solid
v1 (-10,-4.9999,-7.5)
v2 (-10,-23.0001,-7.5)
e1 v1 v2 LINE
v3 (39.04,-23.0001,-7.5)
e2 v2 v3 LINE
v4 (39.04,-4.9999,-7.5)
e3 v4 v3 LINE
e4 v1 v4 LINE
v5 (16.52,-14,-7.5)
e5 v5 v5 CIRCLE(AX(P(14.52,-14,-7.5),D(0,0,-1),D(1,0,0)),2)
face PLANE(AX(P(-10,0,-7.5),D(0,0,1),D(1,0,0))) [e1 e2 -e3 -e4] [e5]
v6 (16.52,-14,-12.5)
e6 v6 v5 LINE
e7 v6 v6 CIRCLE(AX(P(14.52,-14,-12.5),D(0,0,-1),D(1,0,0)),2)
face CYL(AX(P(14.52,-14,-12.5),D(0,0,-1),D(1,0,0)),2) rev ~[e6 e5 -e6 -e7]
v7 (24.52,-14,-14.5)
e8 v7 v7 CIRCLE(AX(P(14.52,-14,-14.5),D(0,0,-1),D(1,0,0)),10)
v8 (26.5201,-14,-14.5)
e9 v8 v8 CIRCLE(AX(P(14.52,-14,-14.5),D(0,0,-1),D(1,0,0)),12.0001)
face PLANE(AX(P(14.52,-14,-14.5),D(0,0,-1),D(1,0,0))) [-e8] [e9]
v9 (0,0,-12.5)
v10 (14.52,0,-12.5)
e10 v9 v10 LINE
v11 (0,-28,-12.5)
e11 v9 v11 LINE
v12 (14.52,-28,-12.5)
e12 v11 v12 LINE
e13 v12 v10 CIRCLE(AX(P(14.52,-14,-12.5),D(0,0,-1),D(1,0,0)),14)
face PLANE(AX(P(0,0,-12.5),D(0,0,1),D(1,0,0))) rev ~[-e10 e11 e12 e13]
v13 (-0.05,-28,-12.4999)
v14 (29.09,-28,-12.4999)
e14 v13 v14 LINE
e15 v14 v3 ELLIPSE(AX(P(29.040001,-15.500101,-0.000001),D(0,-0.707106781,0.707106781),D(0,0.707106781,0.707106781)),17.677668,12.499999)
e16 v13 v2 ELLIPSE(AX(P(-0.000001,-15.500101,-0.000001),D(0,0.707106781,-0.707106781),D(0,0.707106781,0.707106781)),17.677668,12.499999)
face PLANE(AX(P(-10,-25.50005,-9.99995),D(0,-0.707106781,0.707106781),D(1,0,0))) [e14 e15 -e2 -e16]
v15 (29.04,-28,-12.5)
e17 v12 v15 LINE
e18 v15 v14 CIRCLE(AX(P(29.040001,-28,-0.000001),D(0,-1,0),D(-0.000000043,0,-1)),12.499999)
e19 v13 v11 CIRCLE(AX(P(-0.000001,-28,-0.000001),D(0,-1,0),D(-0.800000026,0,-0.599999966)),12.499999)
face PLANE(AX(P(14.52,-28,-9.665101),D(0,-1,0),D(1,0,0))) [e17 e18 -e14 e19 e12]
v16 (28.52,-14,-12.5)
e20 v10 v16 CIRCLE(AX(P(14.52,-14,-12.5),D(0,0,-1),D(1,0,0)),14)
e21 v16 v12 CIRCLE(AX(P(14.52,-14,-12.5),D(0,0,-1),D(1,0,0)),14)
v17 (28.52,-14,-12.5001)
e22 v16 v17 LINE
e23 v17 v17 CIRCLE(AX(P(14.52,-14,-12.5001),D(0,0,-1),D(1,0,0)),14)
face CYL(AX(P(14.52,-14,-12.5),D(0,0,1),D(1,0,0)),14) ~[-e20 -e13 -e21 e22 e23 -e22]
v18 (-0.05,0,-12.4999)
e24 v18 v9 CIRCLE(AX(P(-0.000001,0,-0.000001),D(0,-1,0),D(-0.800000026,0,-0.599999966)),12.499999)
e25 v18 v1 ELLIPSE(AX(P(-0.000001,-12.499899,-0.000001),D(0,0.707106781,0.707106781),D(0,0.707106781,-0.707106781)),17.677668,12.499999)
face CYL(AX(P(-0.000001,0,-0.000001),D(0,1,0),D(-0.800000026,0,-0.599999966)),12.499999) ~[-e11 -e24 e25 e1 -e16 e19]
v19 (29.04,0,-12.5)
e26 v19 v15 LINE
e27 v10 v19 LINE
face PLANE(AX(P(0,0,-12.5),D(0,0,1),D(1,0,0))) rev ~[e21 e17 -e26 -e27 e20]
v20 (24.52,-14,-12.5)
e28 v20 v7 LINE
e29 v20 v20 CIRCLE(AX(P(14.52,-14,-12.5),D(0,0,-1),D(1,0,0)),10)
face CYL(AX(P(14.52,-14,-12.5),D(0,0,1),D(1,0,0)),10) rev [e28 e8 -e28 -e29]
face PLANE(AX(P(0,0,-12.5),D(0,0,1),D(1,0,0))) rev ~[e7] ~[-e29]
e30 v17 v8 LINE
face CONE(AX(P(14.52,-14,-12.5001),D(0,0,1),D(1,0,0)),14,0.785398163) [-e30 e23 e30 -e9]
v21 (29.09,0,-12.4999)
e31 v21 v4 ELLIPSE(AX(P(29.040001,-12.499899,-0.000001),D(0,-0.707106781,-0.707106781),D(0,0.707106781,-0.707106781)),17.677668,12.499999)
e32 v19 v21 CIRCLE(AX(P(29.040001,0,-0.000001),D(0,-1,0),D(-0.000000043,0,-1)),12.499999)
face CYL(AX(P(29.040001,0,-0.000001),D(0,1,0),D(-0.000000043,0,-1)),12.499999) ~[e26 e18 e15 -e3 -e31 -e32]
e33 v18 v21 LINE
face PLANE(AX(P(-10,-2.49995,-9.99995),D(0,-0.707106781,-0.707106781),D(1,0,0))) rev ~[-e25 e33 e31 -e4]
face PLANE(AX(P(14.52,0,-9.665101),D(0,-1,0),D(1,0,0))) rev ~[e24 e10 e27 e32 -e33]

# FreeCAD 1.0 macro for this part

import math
import FreeCAD as App
import Part
import Sketcher

V = App.Vector
Q = App.Units.Quantity


def edges_at(feature, points):
    """Names of the edges that pass closest to the given points."""
    edges = feature.Shape.Edges
    near = lambda p: min(range(len(edges)), key=lambda i: edges[i].distToShape(Part.Vertex(*p))[0])
    return sorted({f"Edge{near(p) + 1}" for p in points})

doc = App.newDocument("Part")
body = doc.addObject("PartDesign::Body", "Body")

sketch1 = body.newObject("Sketcher::SketchObject", "Sketch")
sketch1.AttachmentSupport = (doc.getObject("XZ_Plane"), [""])
sketch1.MapMode = "FlatFace"
sketch1.addGeometry([
    Part.ArcOfCircle(Part.Circle(V(0, 0, 0), V(0, 0, 1), 12), math.radians(-143), math.radians(-90)),
    Part.LineSegment(V(0, -12, 0), V(29, -12, 0)),
    Part.ArcOfCircle(Part.Circle(V(29, 0, 0), V(0, 0, 1), 12), math.radians(-90), math.radians(-37)),
    Part.LineSegment(V(39, -8, 0), V(-10, -8, 0)),
], False)
sketch1.addConstraint([
    Sketcher.Constraint("Tangent", 0, 2, 1, 1),
    Sketcher.Constraint("Tangent", 1, 2, 2, 1),
    Sketcher.Constraint("Coincident", 2, 2, 3, 1),
    Sketcher.Constraint("Coincident", 3, 2, 0, 1),
    Sketcher.Constraint("Horizontal", 1),
    Sketcher.Constraint("Horizontal", 3),
    Sketcher.Constraint("Coincident", 0, 3, -1, 1),
    Sketcher.Constraint("Equal", 0, 2),
    Sketcher.Constraint("Radius", 0, Q("12.499999 mm")),
    Sketcher.Constraint("DistanceX", 3, 2, -1, 1, Q("10 mm")),
    Sketcher.Constraint("DistanceX", 1, 1, 1, 2, Q("29.04 mm")),
])
pad1 = body.newObject("PartDesign::Pad", "Pad")
pad1.Profile = sketch1
pad1.Length = 28

sketch2 = body.newObject("Sketcher::SketchObject", "Sketch001")
sketch2.AttachmentSupport = (doc.getObject("XY_Plane"), [""])
sketch2.MapMode = "FlatFace"
sketch2.AttachmentOffset = App.Placement(V(0, 0, -12.5), App.Rotation())
sketch2.addGeometry([
    Part.Circle(V(15, -14, 0), V(0, 0, 1), 14),
    Part.Circle(V(15, -14, 0), V(0, 0, 1), 10),
], False)
sketch2.addConstraint([
    Sketcher.Constraint("Coincident", 1, 3, 0, 3),
    Sketcher.Constraint("Diameter", 0, Q("28 mm")),
    Sketcher.Constraint("Diameter", 1, Q("20 mm")),
    Sketcher.Constraint("DistanceY", 0, 3, -1, 1, Q("14 mm")),
    Sketcher.Constraint("DistanceX", -1, 1, 0, 3, Q("14.52 mm")),
])
pad2 = body.newObject("PartDesign::Pad", "Pad001")
pad2.Profile = sketch2
pad2.Length = 2
pad2.Reversed = True
doc.recompute()

chamfer = body.newObject("PartDesign::Chamfer", "Chamfer")
chamfer.Base = (pad2, edges_at(pad2, [(0.52, -14, -14.5)]))
chamfer.Size = 1.9999
doc.recompute()

chamfer2 = body.newObject("PartDesign::Chamfer", "Chamfer001")
chamfer2.Base = (chamfer, edges_at(chamfer, [(14.52, 0, -7.5), (14.52, -28, -7.5)]))
chamfer2.Size = 4.9999

sketch3 = body.newObject("Sketcher::SketchObject", "Sketch002")
sketch3.AttachmentSupport = (doc.getObject("XY_Plane"), [""])
sketch3.MapMode = "FlatFace"
sketch3.AttachmentOffset = App.Placement(V(0, 0, -12.5), App.Rotation())
sketch3.addGeometry(Part.Circle(V(14.5, -14, 0), V(0, 0, 1), 2), False)
sketch3.addConstraint([
    Sketcher.Constraint("Diameter", 0, Q("4 mm")),
    Sketcher.Constraint("DistanceY", 0, 3, -1, 1, Q("14 mm")),
    Sketcher.Constraint("DistanceX", -1, 1, 0, 3, Q("14.52 mm")),
])
pocket1 = body.newObject("PartDesign::Pocket", "Pocket")
pocket1.Profile = sketch3
pocket1.Length = 10
pocket1.Reversed = True

doc.recompute()
